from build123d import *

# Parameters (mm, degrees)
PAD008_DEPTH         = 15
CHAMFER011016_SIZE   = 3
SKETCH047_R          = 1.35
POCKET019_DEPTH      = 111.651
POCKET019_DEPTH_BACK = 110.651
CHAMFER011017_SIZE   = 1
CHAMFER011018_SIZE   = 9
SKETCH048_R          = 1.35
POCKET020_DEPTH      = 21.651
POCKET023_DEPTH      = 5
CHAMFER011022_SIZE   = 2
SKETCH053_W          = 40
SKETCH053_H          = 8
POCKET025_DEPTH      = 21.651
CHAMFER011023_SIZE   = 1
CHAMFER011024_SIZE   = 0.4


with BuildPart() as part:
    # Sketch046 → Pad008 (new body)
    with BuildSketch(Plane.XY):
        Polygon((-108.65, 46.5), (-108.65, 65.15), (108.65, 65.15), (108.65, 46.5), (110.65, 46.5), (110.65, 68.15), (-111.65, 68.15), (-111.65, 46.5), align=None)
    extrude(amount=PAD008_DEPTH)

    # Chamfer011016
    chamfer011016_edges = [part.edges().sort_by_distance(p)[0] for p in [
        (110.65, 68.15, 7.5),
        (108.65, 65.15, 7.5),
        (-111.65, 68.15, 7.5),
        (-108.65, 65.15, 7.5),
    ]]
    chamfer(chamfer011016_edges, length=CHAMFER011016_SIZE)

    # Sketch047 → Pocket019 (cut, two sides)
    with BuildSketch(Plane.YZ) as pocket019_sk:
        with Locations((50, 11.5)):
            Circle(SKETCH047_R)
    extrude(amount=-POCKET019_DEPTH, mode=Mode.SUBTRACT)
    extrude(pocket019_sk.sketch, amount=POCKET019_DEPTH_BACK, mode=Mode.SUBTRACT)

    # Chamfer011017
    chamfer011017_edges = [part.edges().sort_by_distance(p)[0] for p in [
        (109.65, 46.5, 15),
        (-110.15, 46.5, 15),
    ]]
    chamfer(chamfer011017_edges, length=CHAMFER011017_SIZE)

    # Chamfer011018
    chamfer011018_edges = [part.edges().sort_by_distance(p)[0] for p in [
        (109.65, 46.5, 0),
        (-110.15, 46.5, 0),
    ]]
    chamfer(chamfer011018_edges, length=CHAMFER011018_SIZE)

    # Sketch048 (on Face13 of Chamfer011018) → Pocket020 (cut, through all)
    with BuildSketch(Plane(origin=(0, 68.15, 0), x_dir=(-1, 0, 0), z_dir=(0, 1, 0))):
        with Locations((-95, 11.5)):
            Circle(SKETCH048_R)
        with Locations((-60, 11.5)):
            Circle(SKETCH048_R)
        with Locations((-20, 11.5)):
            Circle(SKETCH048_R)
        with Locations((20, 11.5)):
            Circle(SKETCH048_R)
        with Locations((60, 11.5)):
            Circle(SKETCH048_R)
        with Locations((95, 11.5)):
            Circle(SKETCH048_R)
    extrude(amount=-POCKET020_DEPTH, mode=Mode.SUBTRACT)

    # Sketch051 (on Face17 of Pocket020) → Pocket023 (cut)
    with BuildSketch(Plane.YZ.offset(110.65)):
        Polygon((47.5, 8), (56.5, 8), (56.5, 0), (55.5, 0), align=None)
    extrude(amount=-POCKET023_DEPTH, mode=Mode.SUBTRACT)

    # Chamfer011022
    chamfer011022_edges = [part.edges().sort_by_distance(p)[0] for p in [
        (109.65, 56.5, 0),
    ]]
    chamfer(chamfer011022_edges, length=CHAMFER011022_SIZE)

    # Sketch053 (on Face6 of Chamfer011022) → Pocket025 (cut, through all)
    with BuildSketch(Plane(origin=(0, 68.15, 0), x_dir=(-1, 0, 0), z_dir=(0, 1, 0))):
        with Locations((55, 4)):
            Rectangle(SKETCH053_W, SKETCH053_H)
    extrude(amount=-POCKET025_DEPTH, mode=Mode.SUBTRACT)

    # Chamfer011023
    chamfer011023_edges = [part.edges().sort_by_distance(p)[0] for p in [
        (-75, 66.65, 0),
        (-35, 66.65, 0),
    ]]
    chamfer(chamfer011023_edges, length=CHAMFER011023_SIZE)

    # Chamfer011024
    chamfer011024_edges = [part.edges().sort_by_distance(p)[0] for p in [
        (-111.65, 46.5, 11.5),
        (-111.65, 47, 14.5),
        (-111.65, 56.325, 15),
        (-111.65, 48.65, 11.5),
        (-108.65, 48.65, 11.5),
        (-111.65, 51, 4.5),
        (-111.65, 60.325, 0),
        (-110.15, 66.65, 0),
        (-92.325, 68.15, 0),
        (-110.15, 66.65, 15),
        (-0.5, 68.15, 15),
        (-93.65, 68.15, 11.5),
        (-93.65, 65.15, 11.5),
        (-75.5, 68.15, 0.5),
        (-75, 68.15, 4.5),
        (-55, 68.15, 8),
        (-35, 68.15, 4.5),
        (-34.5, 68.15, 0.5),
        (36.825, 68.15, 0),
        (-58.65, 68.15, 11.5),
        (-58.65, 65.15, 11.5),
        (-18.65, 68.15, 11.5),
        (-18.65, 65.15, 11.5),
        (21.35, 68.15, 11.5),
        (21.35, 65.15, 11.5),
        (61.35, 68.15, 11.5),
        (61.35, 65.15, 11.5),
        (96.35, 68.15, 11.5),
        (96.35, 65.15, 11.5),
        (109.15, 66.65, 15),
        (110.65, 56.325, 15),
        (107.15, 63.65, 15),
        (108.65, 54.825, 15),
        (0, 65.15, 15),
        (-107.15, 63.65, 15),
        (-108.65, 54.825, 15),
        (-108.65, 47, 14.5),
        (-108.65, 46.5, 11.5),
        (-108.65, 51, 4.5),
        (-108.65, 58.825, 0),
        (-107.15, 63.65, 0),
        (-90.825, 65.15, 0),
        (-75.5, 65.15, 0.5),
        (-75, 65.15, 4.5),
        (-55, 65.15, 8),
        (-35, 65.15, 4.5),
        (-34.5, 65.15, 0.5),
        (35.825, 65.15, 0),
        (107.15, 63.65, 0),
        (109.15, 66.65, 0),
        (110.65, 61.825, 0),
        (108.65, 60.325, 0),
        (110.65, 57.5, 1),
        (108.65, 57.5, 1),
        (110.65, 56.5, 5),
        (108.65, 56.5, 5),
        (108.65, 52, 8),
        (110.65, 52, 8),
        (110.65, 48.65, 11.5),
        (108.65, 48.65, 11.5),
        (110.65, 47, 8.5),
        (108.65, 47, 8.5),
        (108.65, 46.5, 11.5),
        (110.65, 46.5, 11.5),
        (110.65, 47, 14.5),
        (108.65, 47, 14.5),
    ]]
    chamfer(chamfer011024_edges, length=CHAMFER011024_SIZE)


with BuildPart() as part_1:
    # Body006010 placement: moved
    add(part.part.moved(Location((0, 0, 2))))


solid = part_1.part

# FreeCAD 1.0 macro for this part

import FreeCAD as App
import Part
import Sketcher

V = App.Vector
Q = App.Units.Quantity


def edges_at(feature, points):
    """Names of the edges that pass closest to the given points."""
    edges = feature.Shape.Edges
    near = lambda p: min(range(len(edges)), key=lambda i: edges[i].distToShape(Part.Vertex(*p))[0])
    return sorted({f"Edge{near(p) + 1}" for p in points})


def add_polygon(sketch, points):
    """Adds a closed chain of lines whose ends are joined by coincident constraints."""
    first, n = sketch.GeometryCount, len(points)
    for a, b in zip(points, points[1:] + points[:1]):
        sketch.addGeometry(Part.LineSegment(App.Vector(*a, 0), App.Vector(*b, 0)), False)
    for i in range(n):
        sketch.addConstraint(Sketcher.Constraint("Coincident", first + i, 2, first + (i + 1) % n, 1))

doc = App.newDocument("Part")
params = doc.addObject("Spreadsheet::Sheet", "Params")
for row, (alias, value) in enumerate([
    ("sketch1_width", "2 mm"),
    ("sketch1_width2", "3 mm"),
    ("sketch1_width3", "217.3 mm"),
    ("sketch1_height", "18.65 mm"),
    ("pad1_length", "15 mm"),
    ("chamfer_size", "3 mm"),
    ("sketch2_diameter", "2.7 mm"),
    ("chamfer2_size", "1 mm"),
    ("chamfer3_size", "9 mm"),
    ("sketch3_diameter", "2.7 mm"),
    ("sketch4_width", "9 mm"),
    ("sketch4_width2", "1 mm"),
    ("sketch4_height", "8 mm"),
    ("pocket3_length", "5 mm"),
    ("chamfer4_size", "2 mm"),
    ("sketch5_width", "40 mm"),
    ("sketch5_height", "8 mm"),
    ("chamfer5_size", "1 mm"),
    ("chamfer6_size", "0.4 mm"),
], start=1):
    params.set(f"A{row}", alias)
    params.set(f"B{row}", "=" + value)
    params.setAlias(f"B{row}", alias)

body = doc.addObject("PartDesign::Body", "Body")

sketch1 = doc.addObject("Sketcher::SketchObject", "Sketch")
body.addObject(sketch1)
sketch1.AttachmentSupport = (doc.XY_Plane, [""])
sketch1.MapMode = "FlatFace"
add_polygon(sketch1, [(-108.7, 46.5), (-108.7, 65.2), (108.7, 65.2), (108.7, 46.5), (110.7, 46.5), (110.7, 68.2), (-111.7, 68.2), (-111.7, 46.5)])
sketch1.addConstraint(Sketcher.Constraint("Vertical", 0))
sketch1.addConstraint(Sketcher.Constraint("Horizontal", 1))
sketch1.addConstraint(Sketcher.Constraint("Vertical", 2))
sketch1.addConstraint(Sketcher.Constraint("Horizontal", 3))
sketch1.addConstraint(Sketcher.Constraint("Vertical", 4))
sketch1.addConstraint(Sketcher.Constraint("Horizontal", 5))
sketch1.addConstraint(Sketcher.Constraint("Vertical", 6))
sketch1.addConstraint(Sketcher.Constraint("Horizontal", 7))
sketch1.addConstraint(Sketcher.Constraint("Symmetric", 2, 2, 7, 2, -2))
sketch1.addConstraint(Sketcher.Constraint("DistanceX", 3, 1, 3, 2, Q("2 mm")))
sketch1.addConstraint(Sketcher.Constraint("DistanceX", 7, 1, 7, 2, Q("3 mm")))
sketch1.addConstraint(Sketcher.Constraint("DistanceX", 1, 1, 1, 2, Q("217.3 mm")))
sketch1.addConstraint(Sketcher.Constraint("DistanceY", 1, 2, 4, 2, Q("3 mm")))
sketch1.addConstraint(Sketcher.Constraint("DistanceY", 0, 1, 0, 2, Q("18.65 mm")))
sketch1.addConstraint(Sketcher.Constraint("DistanceY", -1, 1, 2, 2, Q("46.5 mm")))
sketch1.setExpression("Constraints[17]", "Params.sketch1_width")
sketch1.setExpression("Constraints[18]", "Params.sketch1_width2")
sketch1.setExpression("Constraints[19]", "Params.sketch1_width3")
sketch1.setExpression("Constraints[21]", "Params.sketch1_height")
pad1 = doc.addObject("PartDesign::Pad", "Pad")
body.addObject(pad1)
pad1.Profile = sketch1
pad1.setExpression("Length", "Params.pad1_length")
doc.recompute()

chamfer = doc.addObject("PartDesign::Chamfer", "Chamfer")
body.addObject(chamfer)
chamfer.Base = (pad1, edges_at(pad1, [
    (110.65, 68.15, 7.5),
    (108.65, 65.15, 7.5),
    (-111.65, 68.15, 7.5),
    (-108.65, 65.15, 7.5),
]))
chamfer.setExpression("Size", "Params.chamfer_size")

sketch2 = doc.addObject("Sketcher::SketchObject", "Sketch001")
body.addObject(sketch2)
sketch2.AttachmentSupport = (doc.YZ_Plane, [""])
sketch2.MapMode = "FlatFace"
sketch2.addGeometry(Part.Circle(V(50, 11.5, 0), V(0, 0, 1), 1.4), False)
sketch2.addConstraint(Sketcher.Constraint("Diameter", 0, Q("2.7 mm")))
sketch2.addConstraint(Sketcher.Constraint("DistanceX", -1, 1, 0, 3, Q("50 mm")))
sketch2.addConstraint(Sketcher.Constraint("DistanceY", -1, 1, 0, 3, Q("11.5 mm")))
sketch2.setExpression("Constraints[0]", "Params.sketch2_diameter")
pocket1 = doc.addObject("PartDesign::Pocket", "Pocket")
body.addObject(pocket1)
pocket1.Profile = sketch2
pocket1.Type = "ThroughAll"
pocket1.Midplane = True
doc.recompute()

chamfer2 = doc.addObject("PartDesign::Chamfer", "Chamfer001")
body.addObject(chamfer2)
chamfer2.Base = (pocket1, edges_at(pocket1, [(109.65, 46.5, 15), (-110.15, 46.5, 15)]))
chamfer2.setExpression("Size", "Params.chamfer2_size")
doc.recompute()

chamfer3 = doc.addObject("PartDesign::Chamfer", "Chamfer002")
body.addObject(chamfer3)
chamfer3.Base = (chamfer2, edges_at(chamfer2, [(109.65, 46.5, 0), (-110.15, 46.5, 0)]))
chamfer3.setExpression("Size", "Params.chamfer3_size")

sketch3 = doc.addObject("Sketcher::SketchObject", "Sketch002")
body.addObject(sketch3)
sketch3.AttachmentSupport = (doc.XZ_Plane, [""])
sketch3.MapMode = "FlatFace"
sketch3.AttachmentOffset = App.Placement(V(0, 0, -68.15), App.Rotation())
sketch3.addGeometry(Part.Circle(V(95, 11.5, 0), V(0, 0, 1), 1.4), False)
sketch3.addGeometry(Part.Circle(V(60, 11.5, 0), V(0, 0, 1), 1.4), False)
sketch3.addGeometry(Part.Circle(V(20, 11.5, 0), V(0, 0, 1), 1.4), False)
sketch3.addGeometry(Part.Circle(V(-20, 11.5, 0), V(0, 0, 1), 1.4), False)
sketch3.addGeometry(Part.Circle(V(-60, 11.5, 0), V(0, 0, 1), 1.4), False)
sketch3.addGeometry(Part.Circle(V(-95, 11.5, 0), V(0, 0, 1), 1.4), False)
sketch3.addConstraint(Sketcher.Constraint("Equal", 0, 1))
sketch3.addConstraint(Sketcher.Constraint("Equal", 1, 2))
sketch3.addConstraint(Sketcher.Constraint("Equal", 2, 3))
sketch3.addConstraint(Sketcher.Constraint("Equal", 3, 4))
sketch3.addConstraint(Sketcher.Constraint("Equal", 4, 5))
sketch3.addConstraint(Sketcher.Constraint("Symmetric", 2, 3, 3, 3, -2))
sketch3.addConstraint(Sketcher.Constraint("Symmetric", 1, 3, 4, 3, -2))
sketch3.addConstraint(Sketcher.Constraint("Symmetric", 0, 3, 5, 3, -2))
sketch3.addConstraint(Sketcher.Constraint("Horizontal", 0, 3, 1, 3))
sketch3.addConstraint(Sketcher.Constraint("Horizontal", 1, 3, 2, 3))
sketch3.addConstraint(Sketcher.Constraint("Diameter", 0, Q("2.7 mm")))
sketch3.addConstraint(Sketcher.Constraint("DistanceX", -1, 1, 0, 3, Q("95 mm")))
sketch3.addConstraint(Sketcher.Constraint("DistanceX", -1, 1, 1, 3, Q("60 mm")))
sketch3.addConstraint(Sketcher.Constraint("DistanceX", -1, 1, 2, 3, Q("20 mm")))
sketch3.addConstraint(Sketcher.Constraint("DistanceY", -1, 1, 0, 3, Q("11.5 mm")))
sketch3.setExpression("Constraints[10]", "Params.sketch3_diameter")
pocket2 = doc.addObject("PartDesign::Pocket", "Pocket001")
body.addObject(pocket2)
pocket2.Profile = sketch3
pocket2.Type = "ThroughAll"
pocket2.Reversed = True

sketch4 = doc.addObject("Sketcher::SketchObject", "Sketch003")
body.addObject(sketch4)
sketch4.AttachmentSupport = (doc.YZ_Plane, [""])
sketch4.MapMode = "FlatFace"
sketch4.AttachmentOffset = App.Placement(V(0, 0, 110.65), App.Rotation())
add_polygon(sketch4, [(56.5, 8), (47.5, 8), (55.5, 0), (56.5, 0)])
sketch4.addConstraint(Sketcher.Constraint("Horizontal", 0))
sketch4.addConstraint(Sketcher.Constraint("Horizontal", 2))
sketch4.addConstraint(Sketcher.Constraint("Vertical", 3))
sketch4.addConstraint(Sketcher.Constraint("PointOnObject", 1, 2, -1))
sketch4.addConstraint(Sketcher.Constraint("DistanceX", 0, 2, 0, 1, Q("9 mm")))
sketch4.addConstraint(Sketcher.Constraint("DistanceX", 2, 1, 2, 2, Q("1 mm")))
sketch4.addConstraint(Sketcher.Constraint("DistanceY", 3, 1, 3, 2, Q("8 mm")))
sketch4.addConstraint(Sketcher.Constraint("DistanceX", -1, 1, 0, 2, Q("47.5 mm")))
sketch4.setExpression("Constraints[8]", "Params.sketch4_width")
sketch4.setExpression("Constraints[9]", "Params.sketch4_width2")
sketch4.setExpression("Constraints[10]", "Params.sketch4_height")
pocket3 = doc.addObject("PartDesign::Pocket", "Pocket002")
body.addObject(pocket3)
pocket3.Profile = sketch4
pocket3.setExpression("Length", "Params.pocket3_length")
doc.recompute()

chamfer4 = doc.addObject("PartDesign::Chamfer", "Chamfer003")
body.addObject(chamfer4)
chamfer4.Base = (pocket3, edges_at(pocket3, [(109.65, 56.5, 0)]))
chamfer4.setExpression("Size", "Params.chamfer4_size")

sketch5 = doc.addObject("Sketcher::SketchObject", "Sketch004")
body.addObject(sketch5)
sketch5.AttachmentSupport = (doc.XZ_Plane, [""])
sketch5.MapMode = "FlatFace"
sketch5.AttachmentOffset = App.Placement(V(0, 0, -68.15), App.Rotation())
add_polygon(sketch5, [(-35, 8), (-35, 0), (-75, 0), (-75, 8)])
sketch5.addConstraint(Sketcher.Constraint("Vertical", 0))
sketch5.addConstraint(Sketcher.Constraint("Horizontal", 1))
sketch5.addConstraint(Sketcher.Constraint("Vertical", 2))
sketch5.addConstraint(Sketcher.Constraint("Horizontal", 3))
sketch5.addConstraint(Sketcher.Constraint("PointOnObject", 0, 2, -1))
sketch5.addConstraint(Sketcher.Constraint("DistanceX", 1, 2, 1, 1, Q("40 mm")))
sketch5.addConstraint(Sketcher.Constraint("DistanceY", 0, 2, 0, 1, Q("8 mm")))
sketch5.addConstraint(Sketcher.Constraint("DistanceX", 0, 2, -1, 1, Q("35 mm")))
sketch5.setExpression("Constraints[9]", "Params.sketch5_width")
sketch5.setExpression("Constraints[10]", "Params.sketch5_height")
pocket4 = doc.addObject("PartDesign::Pocket", "Pocket003")
body.addObject(pocket4)
pocket4.Profile = sketch5
pocket4.Type = "ThroughAll"
pocket4.Reversed = True
doc.recompute()

chamfer5 = doc.addObject("PartDesign::Chamfer", "Chamfer004")
body.addObject(chamfer5)
chamfer5.Base = (pocket4, edges_at(pocket4, [(-75, 66.65, 0), (-35, 66.65, 0)]))
chamfer5.setExpression("Size", "Params.chamfer5_size")
doc.recompute()

chamfer6 = doc.addObject("PartDesign::Chamfer", "Chamfer005")
body.addObject(chamfer6)
chamfer6.Base = (chamfer5, edges_at(chamfer5, [
    (-111.65, 46.5, 11.5),
    (-111.65, 47, 14.5),
    (-111.65, 56.325, 15),
    (-111.65, 48.65, 11.5),
    (-108.65, 48.65, 11.5),
    (-111.65, 51, 4.5),
    (-111.65, 60.325, 0),
    (-110.15, 66.65, 0),
    (-92.325, 68.15, 0),
    (-110.15, 66.65, 15),
    (-0.5, 68.15, 15),
    (-93.65, 68.15, 11.5),
    (-93.65, 65.15, 11.5),
    (-75.5, 68.15, 0.5),
    (-75, 68.15, 4.5),
    (-55, 68.15, 8),
    (-35, 68.15, 4.5),
    (-34.5, 68.15, 0.5),
    (36.825, 68.15, 0),
    (-58.65, 68.15, 11.5),
    (-58.65, 65.15, 11.5),
    (-18.65, 68.15, 11.5),
    (-18.65, 65.15, 11.5),
    (21.35, 68.15, 11.5),
    (21.35, 65.15, 11.5),
    (61.35, 68.15, 11.5),
    (61.35, 65.15, 11.5),
    (96.35, 68.15, 11.5),
    (96.35, 65.15, 11.5),
    (109.15, 66.65, 15),
    (110.65, 56.325, 15),
    (107.15, 63.65, 15),
    (108.65, 54.825, 15),
    (0, 65.15, 15),
    (-107.15, 63.65, 15),
    (-108.65, 54.825, 15),
    (-108.65, 47, 14.5),
    (-108.65, 46.5, 11.5),
    (-108.65, 51, 4.5),
    (-108.65, 58.825, 0),
    (-107.15, 63.65, 0),
    (-90.825, 65.15, 0),
    (-75.5, 65.15, 0.5),
    (-75, 65.15, 4.5),
    (-55, 65.15, 8),
    (-35, 65.15, 4.5),
    (-34.5, 65.15, 0.5),
    (35.825, 65.15, 0),
    (107.15, 63.65, 0),
    (109.15, 66.65, 0),
    (110.65, 61.825, 0),
    (108.65, 60.325, 0),
    (110.65, 57.5, 1),
    (108.65, 57.5, 1),
    (110.65, 56.5, 5),
    (108.65, 56.5, 5),
    (108.65, 52, 8),
    (110.65, 52, 8),
    (110.65, 48.65, 11.5),
    (108.65, 48.65, 11.5),
    (110.65, 47, 8.5),
    (108.65, 47, 8.5),
    (108.65, 46.5, 11.5),
    (110.65, 46.5, 11.5),
    (110.65, 47, 14.5),
    (108.65, 47, 14.5),
]))
chamfer6.setExpression("Size", "Params.chamfer6_size")
body2 = doc.addObject("PartDesign::Body", "Body001")
doc.recompute()

body.Placement = App.Placement(V(0, 0, 2), App.Rotation(V(0, 0, 1), 0))
boolean = doc.addObject("PartDesign::Boolean", "Boolean")
body2.addObject(boolean)
boolean.Type = "Fuse"
boolean.addObjects([body])

doc.recompute()
